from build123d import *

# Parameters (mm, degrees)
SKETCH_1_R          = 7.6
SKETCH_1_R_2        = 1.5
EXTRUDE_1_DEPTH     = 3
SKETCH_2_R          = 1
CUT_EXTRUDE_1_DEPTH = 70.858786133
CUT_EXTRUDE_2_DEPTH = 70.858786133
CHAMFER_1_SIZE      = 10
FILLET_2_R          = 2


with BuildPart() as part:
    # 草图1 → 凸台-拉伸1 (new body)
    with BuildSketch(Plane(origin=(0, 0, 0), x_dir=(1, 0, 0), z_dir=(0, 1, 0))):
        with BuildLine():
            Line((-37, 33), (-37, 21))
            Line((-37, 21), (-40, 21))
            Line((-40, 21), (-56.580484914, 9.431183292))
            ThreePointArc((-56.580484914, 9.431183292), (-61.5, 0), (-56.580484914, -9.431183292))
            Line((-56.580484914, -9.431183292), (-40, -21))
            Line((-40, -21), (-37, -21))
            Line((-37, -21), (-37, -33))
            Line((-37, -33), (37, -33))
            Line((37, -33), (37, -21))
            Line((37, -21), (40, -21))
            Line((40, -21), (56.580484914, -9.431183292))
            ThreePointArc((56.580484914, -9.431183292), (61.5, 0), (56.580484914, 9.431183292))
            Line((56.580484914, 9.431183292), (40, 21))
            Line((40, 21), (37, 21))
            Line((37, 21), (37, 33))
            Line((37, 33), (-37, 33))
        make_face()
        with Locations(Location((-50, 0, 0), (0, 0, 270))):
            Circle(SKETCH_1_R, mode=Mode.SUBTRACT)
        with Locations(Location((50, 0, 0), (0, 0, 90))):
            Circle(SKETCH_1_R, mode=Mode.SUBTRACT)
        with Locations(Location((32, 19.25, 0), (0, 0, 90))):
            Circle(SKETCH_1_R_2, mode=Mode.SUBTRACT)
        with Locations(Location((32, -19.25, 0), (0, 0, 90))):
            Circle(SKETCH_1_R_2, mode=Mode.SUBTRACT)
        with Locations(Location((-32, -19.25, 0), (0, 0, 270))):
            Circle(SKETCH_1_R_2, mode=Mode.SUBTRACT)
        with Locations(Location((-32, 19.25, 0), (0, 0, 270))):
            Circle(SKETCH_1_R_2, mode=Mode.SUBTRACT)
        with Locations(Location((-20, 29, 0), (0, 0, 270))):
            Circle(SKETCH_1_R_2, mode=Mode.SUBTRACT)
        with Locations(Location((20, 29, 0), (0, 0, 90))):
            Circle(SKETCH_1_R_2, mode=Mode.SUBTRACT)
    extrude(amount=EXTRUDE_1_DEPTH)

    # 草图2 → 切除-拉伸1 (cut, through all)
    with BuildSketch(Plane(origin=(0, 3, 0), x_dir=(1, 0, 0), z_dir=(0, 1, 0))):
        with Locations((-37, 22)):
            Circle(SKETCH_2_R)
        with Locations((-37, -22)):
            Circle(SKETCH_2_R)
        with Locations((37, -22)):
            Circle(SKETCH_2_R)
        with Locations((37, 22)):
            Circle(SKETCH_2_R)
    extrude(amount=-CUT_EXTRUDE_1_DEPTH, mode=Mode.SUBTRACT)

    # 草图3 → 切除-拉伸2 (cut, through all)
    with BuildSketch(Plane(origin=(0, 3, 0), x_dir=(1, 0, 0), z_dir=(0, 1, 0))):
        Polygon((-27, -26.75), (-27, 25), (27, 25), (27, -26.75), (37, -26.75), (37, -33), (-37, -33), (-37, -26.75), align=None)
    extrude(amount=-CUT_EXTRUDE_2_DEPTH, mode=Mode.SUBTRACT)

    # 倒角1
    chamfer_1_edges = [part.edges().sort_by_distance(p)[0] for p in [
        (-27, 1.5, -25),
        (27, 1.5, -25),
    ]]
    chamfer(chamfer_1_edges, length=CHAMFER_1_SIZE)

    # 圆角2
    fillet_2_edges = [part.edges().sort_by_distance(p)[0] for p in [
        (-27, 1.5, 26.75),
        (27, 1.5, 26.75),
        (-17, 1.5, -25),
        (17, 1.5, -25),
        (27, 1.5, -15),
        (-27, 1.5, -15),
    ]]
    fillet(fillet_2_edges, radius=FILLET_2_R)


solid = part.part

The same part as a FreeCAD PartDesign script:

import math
import FreeCAD as App
import Part
import Sketcher

V = App.Vector
Q = App.Units.Quantity


def edges_at(feature, points):
    """Names of the edges that pass closest to the given points."""
    edges = feature.Shape.Edges
    near = lambda p: min(range(len(edges)), key=lambda i: edges[i].distToShape(Part.Vertex(*p))[0])
    return sorted({f"Edge{near(p) + 1}" for p in points})


def add_polygon(sketch, points):
    """Adds a closed chain of lines whose ends are joined by coincident constraints."""
    first, n = sketch.GeometryCount, len(points)
    for a, b in zip(points, points[1:] + points[:1]):
        sketch.addGeometry(Part.LineSegment(App.Vector(*a, 0), App.Vector(*b, 0)), False)
    for i in range(n):
        sketch.addConstraint(Sketcher.Constraint("Coincident", first + i, 2, first + (i + 1) % n, 1))

doc = App.newDocument("Part")
body = doc.addObject("PartDesign::Body", "Body")

sketch1 = body.newObject("Sketcher::SketchObject", "Sketch")
sketch1.AttachmentSupport = (doc.getObject("XZ_Plane"), [""])
sketch1.MapMode = "FlatFace"
sketch1.addGeometry(Part.LineSegment(V(-37, -33, 0), V(-37, -21, 0)), False)
sketch1.addGeometry(Part.LineSegment(V(-37, -21, 0), V(-40, -21, 0)), False)
sketch1.addGeometry(Part.LineSegment(V(-40, -21, 0), V(-56.6, -9.4, 0)), False)
sketch1.addGeometry(Part.ArcOfCircle(Part.Circle(V(-50, 0, 0), V(0, 0, 1), 11.5), math.radians(125), math.radians(235)), False)
sketch1.addGeometry(Part.LineSegment(V(-56.6, 9.4, 0), V(-40, 21, 0)), False)
sketch1.addGeometry(Part.LineSegment(V(-40, 21, 0), V(-37, 21, 0)), False)
sketch1.addGeometry(Part.LineSegment(V(-37, 21, 0), V(-37, 33, 0)), False)
sketch1.addGeometry(Part.LineSegment(V(-37, 33, 0), V(37, 33, 0)), False)
sketch1.addGeometry(Part.LineSegment(V(37, 33, 0), V(37, 21, 0)), False)
sketch1.addGeometry(Part.LineSegment(V(37, 21, 0), V(40, 21, 0)), False)
sketch1.addGeometry(Part.LineSegment(V(40, 21, 0), V(56.6, 9.4, 0)), False)
sketch1.addGeometry(Part.ArcOfCircle(Part.Circle(V(50, 0, 0), V(0, 0, 1), 11.5), math.radians(-55), math.radians(55)), False)
sketch1.addGeometry(Part.LineSegment(V(56.6, -9.4, 0), V(40, -21, 0)), False)
sketch1.addGeometry(Part.LineSegment(V(40, -21, 0), V(37, -21, 0)), False)
sketch1.addGeometry(Part.LineSegment(V(37, -21, 0), V(37, -33, 0)), False)
sketch1.addGeometry(Part.LineSegment(V(37, -33, 0), V(-37, -33, 0)), False)
sketch1.addGeometry(Part.Circle(V(-32, 19.2, 0), V(0, 0, 1), 1.5), False)
sketch1.addGeometry(Part.Circle(V(-50, 0, 0), V(0, 0, 1), 7.6), False)
sketch1.addGeometry(Part.Circle(V(32, 19.2, 0), V(0, 0, 1), 1.5), False)
sketch1.addGeometry(Part.Circle(V(50, 0, 0), V(0, 0, 1), 7.6), False)
sketch1.addGeometry(Part.Circle(V(-32, -19.2, 0), V(0, 0, 1), 1.5), False)
sketch1.addGeometry(Part.Circle(V(-20, -29, 0), V(0, 0, 1), 1.5), False)
sketch1.addGeometry(Part.Circle(V(20, -29, 0), V(0, 0, 1), 1.5), False)
sketch1.addGeometry(Part.Circle(V(32, -19.2, 0), V(0, 0, 1), 1.5), False)
sketch1.addConstraint(Sketcher.Constraint("Coincident", 0, 2, 1, 1))
sketch1.addConstraint(Sketcher.Constraint("Coincident", 1, 2, 2, 1))
sketch1.addConstraint(Sketcher.Constraint("Tangent", 2, 2, 3, 2))
sketch1.addConstraint(Sketcher.Constraint("Tangent", 3, 1, 4, 1))
sketch1.addConstraint(Sketcher.Constraint("Coincident", 4, 2, 5, 1))
sketch1.addConstraint(Sketcher.Constraint("Coincident", 5, 2, 6, 1))
sketch1.addConstraint(Sketcher.Constraint("Coincident", 6, 2, 7, 1))
sketch1.addConstraint(Sketcher.Constraint("Coincident", 7, 2, 8, 1))
sketch1.addConstraint(Sketcher.Constraint("Coincident", 8, 2, 9, 1))
sketch1.addConstraint(Sketcher.Constraint("Coincident", 9, 2, 10, 1))
sketch1.addConstraint(Sketcher.Constraint("Tangent", 10, 2, 11, 2))
sketch1.addConstraint(Sketcher.Constraint("Tangent", 11, 1, 12, 1))
sketch1.addConstraint(Sketcher.Constraint("Coincident", 12, 2, 13, 1))
sketch1.addConstraint(Sketcher.Constraint("Coincident", 13, 2, 14, 1))
sketch1.addConstraint(Sketcher.Constraint("Coincident", 14, 2, 15, 1))
sketch1.addConstraint(Sketcher.Constraint("Coincident", 15, 2, 0, 1))
sketch1.addConstraint(Sketcher.Constraint("Vertical", 0))
sketch1.addConstraint(Sketcher.Constraint("Horizontal", 1))
sketch1.addConstraint(Sketcher.Constraint("Horizontal", 5))
sketch1.addConstraint(Sketcher.Constraint("Vertical", 6))
sketch1.addConstraint(Sketcher.Constraint("Horizontal", 7))
sketch1.addConstraint(Sketcher.Constraint("Vertical", 8))
sketch1.addConstraint(Sketcher.Constraint("Horizontal", 9))
sketch1.addConstraint(Sketcher.Constraint("Horizontal", 13))
sketch1.addConstraint(Sketcher.Constraint("Vertical", 14))
sketch1.addConstraint(Sketcher.Constraint("Horizontal", 15))
sketch1.addConstraint(Sketcher.Constraint("Coincident", 17, 3, 3, 3))
sketch1.addConstraint(Sketcher.Constraint("Coincident", 19, 3, 11, 3))
sketch1.addConstraint(Sketcher.Constraint("Equal", 3, 11))
sketch1.addConstraint(Sketcher.Constraint("Equal", 16, 18))
sketch1.addConstraint(Sketcher.Constraint("Equal", 17, 19))
sketch1.addConstraint(Sketcher.Constraint("Equal", 18, 20))
sketch1.addConstraint(Sketcher.Constraint("Equal", 20, 21))
sketch1.addConstraint(Sketcher.Constraint("Equal", 21, 22))
sketch1.addConstraint(Sketcher.Constraint("Equal", 22, 23))
sketch1.addConstraint(Sketcher.Constraint("Symmetric", 3, 3, 11, 3, -1, 1))
sketch1.addConstraint(Sketcher.Constraint("Symmetric", 18, 3, 20, 3, -1, 1))
sketch1.addConstraint(Sketcher.Constraint("Symmetric", 16, 3, 23, 3, -1, 1))
sketch1.addConstraint(Sketcher.Constraint("Symmetric", 0, 2, 8, 2, -1, 1))
sketch1.addConstraint(Sketcher.Constraint("Symmetric", 4, 2, 12, 2, -1, 1))
sketch1.addConstraint(Sketcher.Constraint("Symmetric", 6, 2, 14, 2, -1, 1))
sketch1.addConstraint(Sketcher.Constraint("Symmetric", 16, 3, 18, 3, -2))
sketch1.addConstraint(Sketcher.Constraint("Symmetric", 21, 3, 22, 3, -2))
sketch1.addConstraint(Sketcher.Constraint("Symmetric", 5, 2, 8, 2, -2))
sketch1.addConstraint(Sketcher.Constraint("Symmetric", 3, 1, 10, 2, -2))
sketch1.addConstraint(Sketcher.Constraint("Parallel", 2, 10))
sketch1.addConstraint(Sketcher.Constraint("Diameter", 16, Q("3 mm")))
sketch1.addConstraint(Sketcher.Constraint("Diameter", 17, Q("15.2 mm")))
sketch1.addConstraint(Sketcher.Constraint("Radius", 3, Q("11.5 mm")))
sketch1.addConstraint(Sketcher.Constraint("DistanceX", 1, 2, 1, 1, Q("3 mm")))
sketch1.addConstraint(Sketcher.Constraint("DistanceX", 7, 1, 7, 2, Q("74 mm")))
sketch1.addConstraint(Sketcher.Constraint("DistanceY", 0, 1, 0, 2, Q("12 mm")))
sketch1.addConstraint(Sketcher.Constraint("DistanceX", 3, 3, -1, 1, Q("50 mm")))
sketch1.addConstraint(Sketcher.Constraint("DistanceX", 16, 3, -1, 1, Q("32 mm")))
sketch1.addConstraint(Sketcher.Constraint("DistanceX", 21, 3, -1, 1, Q("20 mm")))
sketch1.addConstraint(Sketcher.Constraint("DistanceY", 21, 3, -1, 1, Q("29 mm")))
sketch1.addConstraint(Sketcher.Constraint("DistanceY", 0, 2, -1, 1, Q("21 mm")))
sketch1.addConstraint(Sketcher.Constraint("DistanceY", 20, 3, 16, 3, Q("38.5 mm")))
pad1 = body.newObject("PartDesign::Pad", "Pad")
pad1.Profile = sketch1
pad1.Length = 3
pad1.Reversed = True

sketch2 = body.newObject("Sketcher::SketchObject", "Sketch001")
sketch2.AttachmentSupport = (doc.getObject("XZ_Plane"), [""])
sketch2.MapMode = "FlatFace"
sketch2.AttachmentOffset = App.Placement(V(0, 0, -3), App.Rotation())
sketch2.addGeometry(Part.Circle(V(-37, -22, 0), V(0, 0, 1), 1), False)
sketch2.addGeometry(Part.Circle(V(-37, 22, 0), V(0, 0, 1), 1), False)
sketch2.addGeometry(Part.Circle(V(37, 22, 0), V(0, 0, 1), 1), False)
sketch2.addGeometry(Part.Circle(V(37, -22, 0), V(0, 0, 1), 1), False)
sketch2.addConstraint(Sketcher.Constraint("Equal", 0, 1))
sketch2.addConstraint(Sketcher.Constraint("Equal", 1, 2))
sketch2.addConstraint(Sketcher.Constraint("Equal", 2, 3))
sketch2.addConstraint(Sketcher.Constraint("Symmetric", 0, 3, 2, 3, -1, 1))
sketch2.addConstraint(Sketcher.Constraint("Symmetric", 1, 3, 3, 3, -1, 1))
sketch2.addConstraint(Sketcher.Constraint("Symmetric", 1, 3, 2, 3, -2))
sketch2.addConstraint(Sketcher.Constraint("Diameter", 0, Q("2 mm")))
sketch2.addConstraint(Sketcher.Constraint("DistanceX", 0, 3, -1, 1, Q("37 mm")))
sketch2.addConstraint(Sketcher.Constraint("DistanceY", 0, 3, -1, 1, Q("22 mm")))
pocket1 = body.newObject("PartDesign::Pocket", "Pocket")
pocket1.Profile = sketch2
pocket1.Type = "ThroughAll"
pocket1.Reversed = True

sketch3 = body.newObject("Sketcher::SketchObject", "Sketch002")
sketch3.AttachmentSupport = (doc.getObject("XZ_Plane"), [""])
sketch3.MapMode = "FlatFace"
sketch3.AttachmentOffset = App.Placement(V(0, 0, -3), App.Rotation())
add_polygon(sketch3, [(-27, -25), (-27, 27), (-37, 27), (-37, 33), (37, 33), (37, 27), (27, 27), (27, -25)])
sketch3.addConstraint(Sketcher.Constraint("Vertical", 0))
sketch3.addConstraint(Sketcher.Constraint("Horizontal", 1))
sketch3.addConstraint(Sketcher.Constraint("Vertical", 2))
sketch3.addConstraint(Sketcher.Constraint("Horizontal", 3))
sketch3.addConstraint(Sketcher.Constraint("Vertical", 4))
sketch3.addConstraint(Sketcher.Constraint("Horizontal", 5))
sketch3.addConstraint(Sketcher.Constraint("Vertical", 6))
sketch3.addConstraint(Sketcher.Constraint("Horizontal", 7))
sketch3.addConstraint(Sketcher.Constraint("Symmetric", 1, 2, 4, 2, -2))
sketch3.addConstraint(Sketcher.Constraint("Equal", 1, 5))
sketch3.addConstraint(Sketcher.Constraint("DistanceX", 1, 2, 1, 1, Q("10 mm")))
sketch3.addConstraint(Sketcher.Constraint("DistanceX", 3, 1, 3, 2, Q("74 mm")))
sketch3.addConstraint(Sketcher.Constraint("DistanceY", -1, 1, 2, 2, Q("33 mm")))
sketch3.addConstraint(Sketcher.Constraint("DistanceY", 6, 2, -1, 1, Q("25 mm")))
sketch3.addConstraint(Sketcher.Constraint("DistanceY", 0, 1, 0, 2, Q("51.75 mm")))
pocket2 = body.newObject("PartDesign::Pocket", "Pocket001")
pocket2.Profile = sketch3
pocket2.Type = "ThroughAll"
pocket2.Reversed = True
doc.recompute()

chamfer = body.newObject("PartDesign::Chamfer", "Chamfer")
chamfer.Base = (pocket2, edges_at(pocket2, [(-27, 1.5, -25), (27, 1.5, -25)]))
chamfer.Size = 10
doc.recompute()

fillet = body.newObject("PartDesign::Fillet", "Fillet")
fillet.Base = (chamfer, edges_at(chamfer, [
    (-27, 1.5, 26.75),
    (27, 1.5, 26.75),
    (-17, 1.5, -25),
    (17, 1.5, -25),
    (27, 1.5, -15),
    (-27, 1.5, -15),
]))
fillet.Radius = 2

doc.recompute()
